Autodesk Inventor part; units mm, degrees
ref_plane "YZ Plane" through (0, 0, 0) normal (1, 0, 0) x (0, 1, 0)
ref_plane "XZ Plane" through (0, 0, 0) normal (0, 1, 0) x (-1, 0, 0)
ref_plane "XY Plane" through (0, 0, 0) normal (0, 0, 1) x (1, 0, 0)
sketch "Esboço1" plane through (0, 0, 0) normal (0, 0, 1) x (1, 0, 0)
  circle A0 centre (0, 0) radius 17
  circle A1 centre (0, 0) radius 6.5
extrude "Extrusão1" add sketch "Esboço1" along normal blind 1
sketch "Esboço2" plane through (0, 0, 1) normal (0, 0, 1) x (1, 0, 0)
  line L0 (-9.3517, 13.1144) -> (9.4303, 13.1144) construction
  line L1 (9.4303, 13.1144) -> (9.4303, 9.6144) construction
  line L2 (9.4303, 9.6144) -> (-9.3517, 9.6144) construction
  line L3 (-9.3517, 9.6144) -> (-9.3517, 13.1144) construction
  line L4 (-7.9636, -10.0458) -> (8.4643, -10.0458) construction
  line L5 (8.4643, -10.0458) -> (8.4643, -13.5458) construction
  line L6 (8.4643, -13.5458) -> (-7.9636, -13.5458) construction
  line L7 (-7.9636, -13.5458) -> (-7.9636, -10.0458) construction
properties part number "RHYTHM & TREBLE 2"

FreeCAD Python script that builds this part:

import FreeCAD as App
import Part
import Sketcher

V = App.Vector
Q = App.Units.Quantity

doc = App.newDocument("Part")
body = doc.addObject("PartDesign::Body", "Body")

# Sketch on XY plane
sketch1 = doc.addObject("Sketcher::SketchObject", "Sketch")
body.addObject(sketch1)
sketch1.AttachmentSupport = (doc.XY_Plane, [""])
sketch1.MapMode = "FlatFace"
sketch1.addGeometry([
    Part.Circle(V(0, 0, 0), V(0, 0, 1), 17),
    Part.Circle(V(0, 0, 0), V(0, 0, 1), 6),
], False)
sketch1.addConstraint([
    Sketcher.Constraint("Coincident", 0, 3, -1, 1),
    Sketcher.Constraint("Coincident", 1, 3, -1, 1),
    Sketcher.Constraint("Diameter", 0, Q("34 mm")),
    Sketcher.Constraint("Diameter", 1, Q("13 mm")),
])
pad1 = doc.addObject("PartDesign::Pad", "Pad")
body.addObject(pad1)
pad1.Profile = sketch1
pad1.Length = 1

doc.recompute()
